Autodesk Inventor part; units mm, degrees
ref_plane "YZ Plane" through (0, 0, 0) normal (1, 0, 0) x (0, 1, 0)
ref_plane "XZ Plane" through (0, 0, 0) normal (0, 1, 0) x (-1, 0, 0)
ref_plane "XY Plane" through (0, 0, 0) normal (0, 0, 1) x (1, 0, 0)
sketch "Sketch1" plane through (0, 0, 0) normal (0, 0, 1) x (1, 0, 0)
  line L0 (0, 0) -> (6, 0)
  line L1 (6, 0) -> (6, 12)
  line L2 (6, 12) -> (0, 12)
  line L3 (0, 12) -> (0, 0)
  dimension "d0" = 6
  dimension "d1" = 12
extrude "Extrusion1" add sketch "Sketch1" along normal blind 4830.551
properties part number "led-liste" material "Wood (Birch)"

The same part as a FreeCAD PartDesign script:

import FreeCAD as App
import Part
import Sketcher
from FreeCAD import Vector
Q = App.Units.Quantity

doc = App.newDocument("Part")
params = doc.addObject("Spreadsheet::Sheet", "Params")
for row, (alias, value) in enumerate([
    ("sketch1_width", "6 mm"),
    ("sketch1_height", "12 mm"),
    ("pad1_length", "4830.551 mm"),
], start=1):
    params.set(f"A{row}", alias)
    params.set(f"B{row}", "=" + value)
    params.setAlias(f"B{row}", alias)

body = doc.addObject("PartDesign::Body", "Body")

sketch1 = body.newObject("Sketcher::SketchObject", "Sketch")
sketch1.AttachmentSupport = (doc.getObject("XY_Plane"), [""])
sketch1.MapMode = "FlatFace"
sketch1.addGeometry([
    Part.LineSegment(Vector(0, 12, 0), Vector(0, 0, 0)),
    Part.LineSegment(Vector(0, 0, 0), Vector(6, 0, 0)),
    Part.LineSegment(Vector(6, 0, 0), Vector(6, 12, 0)),
    Part.LineSegment(Vector(6, 12, 0), Vector(0, 12, 0)),
], False)
sketch1.addConstraint([
    Sketcher.Constraint("Coincident", 0, 2, 1, 1),
    Sketcher.Constraint("Coincident", 1, 2, 2, 1),
    Sketcher.Constraint("Coincident", 2, 2, 3, 1),
    Sketcher.Constraint("Coincident", 3, 2, 0, 1),
    Sketcher.Constraint("Vertical", 0),
    Sketcher.Constraint("Horizontal", 1),
    Sketcher.Constraint("Vertical", 2),
    Sketcher.Constraint("Horizontal", 3),
    Sketcher.Constraint("Coincident", 0, 2, -1, 1),
    Sketcher.Constraint("DistanceX", 1, 1, 1, 2, Q("6 mm")),
    Sketcher.Constraint("DistanceY", 0, 2, 0, 1, Q("12 mm")),
])
sketch1.setExpression("Constraints[9]", "Params.sketch1_width")
sketch1.setExpression("Constraints[10]", "Params.sketch1_height")
pad1 = body.newObject("PartDesign::Pad", "Pad")
pad1.Profile = sketch1
pad1.setExpression("Length", "Params.pad1_length")

doc.recompute()
